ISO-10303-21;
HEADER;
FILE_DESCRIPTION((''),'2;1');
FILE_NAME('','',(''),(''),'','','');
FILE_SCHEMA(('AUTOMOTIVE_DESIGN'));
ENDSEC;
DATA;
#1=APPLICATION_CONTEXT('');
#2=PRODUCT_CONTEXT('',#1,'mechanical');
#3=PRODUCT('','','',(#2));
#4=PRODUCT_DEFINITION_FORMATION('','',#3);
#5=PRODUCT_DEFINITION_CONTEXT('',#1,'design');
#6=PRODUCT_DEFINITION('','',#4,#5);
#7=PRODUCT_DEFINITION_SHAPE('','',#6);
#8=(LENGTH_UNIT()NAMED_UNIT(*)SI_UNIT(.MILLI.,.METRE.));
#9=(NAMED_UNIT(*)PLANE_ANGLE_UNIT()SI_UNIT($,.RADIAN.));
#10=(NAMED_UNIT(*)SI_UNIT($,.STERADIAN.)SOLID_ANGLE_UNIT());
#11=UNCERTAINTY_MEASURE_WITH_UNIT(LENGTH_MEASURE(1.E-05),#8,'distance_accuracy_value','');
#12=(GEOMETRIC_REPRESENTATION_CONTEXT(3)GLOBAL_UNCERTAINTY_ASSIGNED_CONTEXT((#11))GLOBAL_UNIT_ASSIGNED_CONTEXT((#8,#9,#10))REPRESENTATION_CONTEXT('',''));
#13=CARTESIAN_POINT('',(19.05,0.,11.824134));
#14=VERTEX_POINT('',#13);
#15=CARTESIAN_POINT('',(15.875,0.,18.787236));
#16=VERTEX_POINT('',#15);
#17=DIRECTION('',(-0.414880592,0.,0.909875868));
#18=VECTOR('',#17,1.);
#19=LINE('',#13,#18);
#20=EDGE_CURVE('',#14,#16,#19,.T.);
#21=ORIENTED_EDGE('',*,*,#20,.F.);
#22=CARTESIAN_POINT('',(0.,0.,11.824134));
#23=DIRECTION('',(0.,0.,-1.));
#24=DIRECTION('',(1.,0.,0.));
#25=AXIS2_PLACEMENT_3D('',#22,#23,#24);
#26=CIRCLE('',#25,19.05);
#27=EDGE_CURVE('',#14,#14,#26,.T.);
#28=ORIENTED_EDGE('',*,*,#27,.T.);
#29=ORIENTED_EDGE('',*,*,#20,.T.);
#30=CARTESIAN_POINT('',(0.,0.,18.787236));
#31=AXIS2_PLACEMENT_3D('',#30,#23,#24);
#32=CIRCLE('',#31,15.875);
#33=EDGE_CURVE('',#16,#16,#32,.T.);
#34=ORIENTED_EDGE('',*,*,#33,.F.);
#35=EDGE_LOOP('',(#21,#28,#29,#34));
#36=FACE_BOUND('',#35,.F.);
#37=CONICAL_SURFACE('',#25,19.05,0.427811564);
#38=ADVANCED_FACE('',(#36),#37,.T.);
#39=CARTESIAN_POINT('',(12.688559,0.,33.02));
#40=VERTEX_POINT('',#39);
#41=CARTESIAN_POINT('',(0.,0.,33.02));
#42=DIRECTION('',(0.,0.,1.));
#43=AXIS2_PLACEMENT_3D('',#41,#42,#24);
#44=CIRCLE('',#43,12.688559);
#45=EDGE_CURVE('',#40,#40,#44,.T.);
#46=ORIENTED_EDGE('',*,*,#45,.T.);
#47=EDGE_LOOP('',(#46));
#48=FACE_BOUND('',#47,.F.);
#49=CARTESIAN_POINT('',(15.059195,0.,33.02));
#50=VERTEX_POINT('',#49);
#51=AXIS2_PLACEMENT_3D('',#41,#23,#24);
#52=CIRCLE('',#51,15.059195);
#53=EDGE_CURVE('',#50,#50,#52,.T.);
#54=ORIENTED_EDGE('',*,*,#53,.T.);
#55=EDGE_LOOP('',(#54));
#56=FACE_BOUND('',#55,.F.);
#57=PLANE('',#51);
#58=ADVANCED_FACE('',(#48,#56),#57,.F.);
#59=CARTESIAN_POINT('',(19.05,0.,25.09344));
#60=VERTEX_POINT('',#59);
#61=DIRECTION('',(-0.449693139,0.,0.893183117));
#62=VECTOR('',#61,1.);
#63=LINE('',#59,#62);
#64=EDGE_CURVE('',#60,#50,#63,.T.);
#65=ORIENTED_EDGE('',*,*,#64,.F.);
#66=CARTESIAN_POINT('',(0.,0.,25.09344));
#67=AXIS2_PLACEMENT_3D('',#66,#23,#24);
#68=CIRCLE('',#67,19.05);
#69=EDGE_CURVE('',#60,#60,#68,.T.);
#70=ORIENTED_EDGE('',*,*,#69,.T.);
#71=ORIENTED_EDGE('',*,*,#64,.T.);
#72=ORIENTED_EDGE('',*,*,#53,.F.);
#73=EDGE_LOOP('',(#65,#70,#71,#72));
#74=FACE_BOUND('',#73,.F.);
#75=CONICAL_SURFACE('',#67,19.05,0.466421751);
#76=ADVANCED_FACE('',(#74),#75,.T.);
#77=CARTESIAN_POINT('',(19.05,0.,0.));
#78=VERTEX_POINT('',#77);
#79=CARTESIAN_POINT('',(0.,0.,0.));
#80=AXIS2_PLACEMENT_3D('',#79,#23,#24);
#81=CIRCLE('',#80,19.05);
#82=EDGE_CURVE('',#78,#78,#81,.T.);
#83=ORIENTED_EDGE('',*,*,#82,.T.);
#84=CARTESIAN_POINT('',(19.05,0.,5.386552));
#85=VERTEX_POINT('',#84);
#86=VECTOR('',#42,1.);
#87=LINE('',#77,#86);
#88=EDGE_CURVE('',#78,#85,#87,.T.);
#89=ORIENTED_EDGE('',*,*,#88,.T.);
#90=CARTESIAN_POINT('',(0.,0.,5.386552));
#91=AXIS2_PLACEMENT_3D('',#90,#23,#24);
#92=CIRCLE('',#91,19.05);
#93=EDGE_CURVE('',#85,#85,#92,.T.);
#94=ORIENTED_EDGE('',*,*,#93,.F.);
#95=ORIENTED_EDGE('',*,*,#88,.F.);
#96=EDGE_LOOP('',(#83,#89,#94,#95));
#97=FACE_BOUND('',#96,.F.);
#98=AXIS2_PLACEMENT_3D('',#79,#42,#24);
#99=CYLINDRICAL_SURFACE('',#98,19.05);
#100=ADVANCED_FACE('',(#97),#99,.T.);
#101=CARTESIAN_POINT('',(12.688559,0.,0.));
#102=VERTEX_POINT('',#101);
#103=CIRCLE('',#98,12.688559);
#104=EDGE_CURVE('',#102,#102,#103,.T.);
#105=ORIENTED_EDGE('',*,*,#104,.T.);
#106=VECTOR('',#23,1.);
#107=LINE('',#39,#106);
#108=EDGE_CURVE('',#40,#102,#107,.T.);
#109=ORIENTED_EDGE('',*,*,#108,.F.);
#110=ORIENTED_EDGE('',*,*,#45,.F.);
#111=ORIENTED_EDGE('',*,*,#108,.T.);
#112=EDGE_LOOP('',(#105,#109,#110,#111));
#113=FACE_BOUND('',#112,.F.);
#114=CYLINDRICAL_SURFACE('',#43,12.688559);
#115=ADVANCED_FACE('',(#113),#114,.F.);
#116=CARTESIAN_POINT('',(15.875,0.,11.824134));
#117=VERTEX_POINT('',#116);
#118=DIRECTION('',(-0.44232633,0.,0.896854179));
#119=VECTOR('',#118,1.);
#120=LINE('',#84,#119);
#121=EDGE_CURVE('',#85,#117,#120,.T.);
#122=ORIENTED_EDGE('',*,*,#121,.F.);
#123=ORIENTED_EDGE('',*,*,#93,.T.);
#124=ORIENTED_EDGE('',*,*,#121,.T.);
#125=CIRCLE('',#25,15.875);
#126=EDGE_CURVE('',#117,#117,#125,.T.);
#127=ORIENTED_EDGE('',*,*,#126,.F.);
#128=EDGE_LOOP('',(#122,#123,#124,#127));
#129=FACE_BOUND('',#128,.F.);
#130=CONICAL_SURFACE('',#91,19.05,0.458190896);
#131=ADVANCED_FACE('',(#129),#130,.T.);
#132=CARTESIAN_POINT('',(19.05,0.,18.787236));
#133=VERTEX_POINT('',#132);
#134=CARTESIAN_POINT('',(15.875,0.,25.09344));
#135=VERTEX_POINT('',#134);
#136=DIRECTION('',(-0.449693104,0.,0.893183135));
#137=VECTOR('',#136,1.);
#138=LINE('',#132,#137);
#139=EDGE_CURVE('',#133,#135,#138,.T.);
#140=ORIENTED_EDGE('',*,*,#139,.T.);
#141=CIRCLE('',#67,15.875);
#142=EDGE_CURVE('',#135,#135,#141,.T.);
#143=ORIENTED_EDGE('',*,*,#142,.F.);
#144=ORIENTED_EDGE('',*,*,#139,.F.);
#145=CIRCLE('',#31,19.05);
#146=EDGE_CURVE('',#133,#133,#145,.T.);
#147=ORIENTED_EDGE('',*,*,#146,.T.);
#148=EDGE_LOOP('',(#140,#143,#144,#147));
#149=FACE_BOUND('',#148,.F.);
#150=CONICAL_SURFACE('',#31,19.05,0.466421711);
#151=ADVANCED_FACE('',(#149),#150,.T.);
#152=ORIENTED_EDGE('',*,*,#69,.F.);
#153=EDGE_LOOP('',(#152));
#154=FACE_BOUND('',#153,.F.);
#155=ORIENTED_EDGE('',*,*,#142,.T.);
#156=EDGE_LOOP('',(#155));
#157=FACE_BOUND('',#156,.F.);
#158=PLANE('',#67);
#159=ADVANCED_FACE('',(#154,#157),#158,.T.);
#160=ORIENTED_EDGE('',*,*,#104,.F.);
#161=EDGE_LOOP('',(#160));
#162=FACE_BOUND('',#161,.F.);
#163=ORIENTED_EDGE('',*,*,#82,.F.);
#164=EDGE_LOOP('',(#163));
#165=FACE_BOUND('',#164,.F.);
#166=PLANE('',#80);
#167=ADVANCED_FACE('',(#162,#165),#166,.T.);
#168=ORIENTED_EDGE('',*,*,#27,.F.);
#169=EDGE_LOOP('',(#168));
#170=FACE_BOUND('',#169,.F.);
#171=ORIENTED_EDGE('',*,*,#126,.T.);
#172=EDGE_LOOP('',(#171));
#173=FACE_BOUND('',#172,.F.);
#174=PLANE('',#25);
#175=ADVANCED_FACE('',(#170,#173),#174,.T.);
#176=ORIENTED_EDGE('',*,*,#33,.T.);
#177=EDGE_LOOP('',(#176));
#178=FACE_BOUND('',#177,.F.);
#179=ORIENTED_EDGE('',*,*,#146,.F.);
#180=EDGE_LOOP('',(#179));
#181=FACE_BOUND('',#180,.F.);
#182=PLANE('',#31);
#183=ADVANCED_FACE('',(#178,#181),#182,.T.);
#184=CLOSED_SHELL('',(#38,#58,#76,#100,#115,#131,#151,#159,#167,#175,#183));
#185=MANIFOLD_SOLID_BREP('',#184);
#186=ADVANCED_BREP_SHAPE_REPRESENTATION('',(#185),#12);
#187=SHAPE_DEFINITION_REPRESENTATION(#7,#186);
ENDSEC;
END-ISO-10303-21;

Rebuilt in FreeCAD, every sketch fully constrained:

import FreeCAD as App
import Part
import Sketcher

V = App.Vector
Q = App.Units.Quantity


def add_polygon(sketch, points):
    """Adds a closed chain of lines whose ends are joined by coincident constraints."""
    first, n = sketch.GeometryCount, len(points)
    for a, b in zip(points, points[1:] + points[:1]):
        sketch.addGeometry(Part.LineSegment(App.Vector(*a, 0), App.Vector(*b, 0)), False)
    for i in range(n):
        sketch.addConstraint(Sketcher.Constraint("Coincident", first + i, 2, first + (i + 1) % n, 1))

doc = App.newDocument("Part")
body = doc.addObject("PartDesign::Body", "Body")

sketch1 = body.newObject("Sketcher::SketchObject", "Sketch")
sketch1.AttachmentSupport = (doc.getObject("XZ_Plane"), [""])
sketch1.MapMode = "FlatFace"
add_polygon(sketch1, [(0, 33), (0, 0), (19.1, 0), (19.1, 5.4), (15.9, 11.8), (19.1, 11.8), (15.9, 18.8), (19.1, 18.8), (15.9, 25.1), (19.1, 25.1), (15.1, 33)])
sketch1.addConstraint([
    Sketcher.Constraint("Vertical", 0),
    Sketcher.Constraint("Horizontal", 1),
    Sketcher.Constraint("Vertical", 2),
    Sketcher.Constraint("Horizontal", 4),
    Sketcher.Constraint("Horizontal", 6),
    Sketcher.Constraint("Horizontal", 8),
    Sketcher.Constraint("Horizontal", 10),
    Sketcher.Constraint("Coincident", 0, 2, -1, 1),
    Sketcher.Constraint("Parallel", 7, 9),
    Sketcher.Constraint("Vertical", 2, 2, 4, 2),
    Sketcher.Constraint("Vertical", 3, 2, 5, 2),
    Sketcher.Constraint("Vertical", 4, 2, 6, 2),
    Sketcher.Constraint("Vertical", 5, 2, 7, 2),
    Sketcher.Constraint("Vertical", 6, 2, 8, 2),
    Sketcher.Constraint("DistanceY", 0, 2, 0, 1, Q("1.3 in")),
    Sketcher.Constraint("DistanceX", 1, 1, 1, 2, Q("0.75 in")),
    Sketcher.Constraint("DistanceX", 4, 1, 4, 2, Q("0.125 in")),
    Sketcher.Constraint("DistanceY", 3, 2, 5, 2, 6.963102),
    Sketcher.Constraint("Distance", 3, 7.177958),
    Sketcher.Constraint("Distance", 7, 7.060371),
    Sketcher.Constraint("DistanceX", 10, 2, 10, 1, 15.059195),
])
revolution = body.newObject("PartDesign::Revolution", "Revolution")
revolution.Profile = sketch1
revolution.ReferenceAxis = (sketch1, ["V_Axis"])
revolution.Angle = 360

sketch2 = body.newObject("Sketcher::SketchObject", "Sketch001")
sketch2.AttachmentSupport = (doc.getObject("XY_Plane"), [""])
sketch2.MapMode = "FlatFace"
sketch2.AttachmentOffset = App.Placement(V(0, 0, 1.3 * 25.4), App.Rotation())
sketch2.addGeometry(Part.Circle(V(0, 0, 0), V(0, 0, 1), 13), False)
sketch2.addConstraint([
    Sketcher.Constraint("Coincident", 0, 3, -1, 1),
    Sketcher.Constraint("Diameter", 0, 25.377118),
])
pocket1 = body.newObject("PartDesign::Pocket", "Pocket")
pocket1.Profile = sketch2
pocket1.Type = "ThroughAll"

doc.recompute()
